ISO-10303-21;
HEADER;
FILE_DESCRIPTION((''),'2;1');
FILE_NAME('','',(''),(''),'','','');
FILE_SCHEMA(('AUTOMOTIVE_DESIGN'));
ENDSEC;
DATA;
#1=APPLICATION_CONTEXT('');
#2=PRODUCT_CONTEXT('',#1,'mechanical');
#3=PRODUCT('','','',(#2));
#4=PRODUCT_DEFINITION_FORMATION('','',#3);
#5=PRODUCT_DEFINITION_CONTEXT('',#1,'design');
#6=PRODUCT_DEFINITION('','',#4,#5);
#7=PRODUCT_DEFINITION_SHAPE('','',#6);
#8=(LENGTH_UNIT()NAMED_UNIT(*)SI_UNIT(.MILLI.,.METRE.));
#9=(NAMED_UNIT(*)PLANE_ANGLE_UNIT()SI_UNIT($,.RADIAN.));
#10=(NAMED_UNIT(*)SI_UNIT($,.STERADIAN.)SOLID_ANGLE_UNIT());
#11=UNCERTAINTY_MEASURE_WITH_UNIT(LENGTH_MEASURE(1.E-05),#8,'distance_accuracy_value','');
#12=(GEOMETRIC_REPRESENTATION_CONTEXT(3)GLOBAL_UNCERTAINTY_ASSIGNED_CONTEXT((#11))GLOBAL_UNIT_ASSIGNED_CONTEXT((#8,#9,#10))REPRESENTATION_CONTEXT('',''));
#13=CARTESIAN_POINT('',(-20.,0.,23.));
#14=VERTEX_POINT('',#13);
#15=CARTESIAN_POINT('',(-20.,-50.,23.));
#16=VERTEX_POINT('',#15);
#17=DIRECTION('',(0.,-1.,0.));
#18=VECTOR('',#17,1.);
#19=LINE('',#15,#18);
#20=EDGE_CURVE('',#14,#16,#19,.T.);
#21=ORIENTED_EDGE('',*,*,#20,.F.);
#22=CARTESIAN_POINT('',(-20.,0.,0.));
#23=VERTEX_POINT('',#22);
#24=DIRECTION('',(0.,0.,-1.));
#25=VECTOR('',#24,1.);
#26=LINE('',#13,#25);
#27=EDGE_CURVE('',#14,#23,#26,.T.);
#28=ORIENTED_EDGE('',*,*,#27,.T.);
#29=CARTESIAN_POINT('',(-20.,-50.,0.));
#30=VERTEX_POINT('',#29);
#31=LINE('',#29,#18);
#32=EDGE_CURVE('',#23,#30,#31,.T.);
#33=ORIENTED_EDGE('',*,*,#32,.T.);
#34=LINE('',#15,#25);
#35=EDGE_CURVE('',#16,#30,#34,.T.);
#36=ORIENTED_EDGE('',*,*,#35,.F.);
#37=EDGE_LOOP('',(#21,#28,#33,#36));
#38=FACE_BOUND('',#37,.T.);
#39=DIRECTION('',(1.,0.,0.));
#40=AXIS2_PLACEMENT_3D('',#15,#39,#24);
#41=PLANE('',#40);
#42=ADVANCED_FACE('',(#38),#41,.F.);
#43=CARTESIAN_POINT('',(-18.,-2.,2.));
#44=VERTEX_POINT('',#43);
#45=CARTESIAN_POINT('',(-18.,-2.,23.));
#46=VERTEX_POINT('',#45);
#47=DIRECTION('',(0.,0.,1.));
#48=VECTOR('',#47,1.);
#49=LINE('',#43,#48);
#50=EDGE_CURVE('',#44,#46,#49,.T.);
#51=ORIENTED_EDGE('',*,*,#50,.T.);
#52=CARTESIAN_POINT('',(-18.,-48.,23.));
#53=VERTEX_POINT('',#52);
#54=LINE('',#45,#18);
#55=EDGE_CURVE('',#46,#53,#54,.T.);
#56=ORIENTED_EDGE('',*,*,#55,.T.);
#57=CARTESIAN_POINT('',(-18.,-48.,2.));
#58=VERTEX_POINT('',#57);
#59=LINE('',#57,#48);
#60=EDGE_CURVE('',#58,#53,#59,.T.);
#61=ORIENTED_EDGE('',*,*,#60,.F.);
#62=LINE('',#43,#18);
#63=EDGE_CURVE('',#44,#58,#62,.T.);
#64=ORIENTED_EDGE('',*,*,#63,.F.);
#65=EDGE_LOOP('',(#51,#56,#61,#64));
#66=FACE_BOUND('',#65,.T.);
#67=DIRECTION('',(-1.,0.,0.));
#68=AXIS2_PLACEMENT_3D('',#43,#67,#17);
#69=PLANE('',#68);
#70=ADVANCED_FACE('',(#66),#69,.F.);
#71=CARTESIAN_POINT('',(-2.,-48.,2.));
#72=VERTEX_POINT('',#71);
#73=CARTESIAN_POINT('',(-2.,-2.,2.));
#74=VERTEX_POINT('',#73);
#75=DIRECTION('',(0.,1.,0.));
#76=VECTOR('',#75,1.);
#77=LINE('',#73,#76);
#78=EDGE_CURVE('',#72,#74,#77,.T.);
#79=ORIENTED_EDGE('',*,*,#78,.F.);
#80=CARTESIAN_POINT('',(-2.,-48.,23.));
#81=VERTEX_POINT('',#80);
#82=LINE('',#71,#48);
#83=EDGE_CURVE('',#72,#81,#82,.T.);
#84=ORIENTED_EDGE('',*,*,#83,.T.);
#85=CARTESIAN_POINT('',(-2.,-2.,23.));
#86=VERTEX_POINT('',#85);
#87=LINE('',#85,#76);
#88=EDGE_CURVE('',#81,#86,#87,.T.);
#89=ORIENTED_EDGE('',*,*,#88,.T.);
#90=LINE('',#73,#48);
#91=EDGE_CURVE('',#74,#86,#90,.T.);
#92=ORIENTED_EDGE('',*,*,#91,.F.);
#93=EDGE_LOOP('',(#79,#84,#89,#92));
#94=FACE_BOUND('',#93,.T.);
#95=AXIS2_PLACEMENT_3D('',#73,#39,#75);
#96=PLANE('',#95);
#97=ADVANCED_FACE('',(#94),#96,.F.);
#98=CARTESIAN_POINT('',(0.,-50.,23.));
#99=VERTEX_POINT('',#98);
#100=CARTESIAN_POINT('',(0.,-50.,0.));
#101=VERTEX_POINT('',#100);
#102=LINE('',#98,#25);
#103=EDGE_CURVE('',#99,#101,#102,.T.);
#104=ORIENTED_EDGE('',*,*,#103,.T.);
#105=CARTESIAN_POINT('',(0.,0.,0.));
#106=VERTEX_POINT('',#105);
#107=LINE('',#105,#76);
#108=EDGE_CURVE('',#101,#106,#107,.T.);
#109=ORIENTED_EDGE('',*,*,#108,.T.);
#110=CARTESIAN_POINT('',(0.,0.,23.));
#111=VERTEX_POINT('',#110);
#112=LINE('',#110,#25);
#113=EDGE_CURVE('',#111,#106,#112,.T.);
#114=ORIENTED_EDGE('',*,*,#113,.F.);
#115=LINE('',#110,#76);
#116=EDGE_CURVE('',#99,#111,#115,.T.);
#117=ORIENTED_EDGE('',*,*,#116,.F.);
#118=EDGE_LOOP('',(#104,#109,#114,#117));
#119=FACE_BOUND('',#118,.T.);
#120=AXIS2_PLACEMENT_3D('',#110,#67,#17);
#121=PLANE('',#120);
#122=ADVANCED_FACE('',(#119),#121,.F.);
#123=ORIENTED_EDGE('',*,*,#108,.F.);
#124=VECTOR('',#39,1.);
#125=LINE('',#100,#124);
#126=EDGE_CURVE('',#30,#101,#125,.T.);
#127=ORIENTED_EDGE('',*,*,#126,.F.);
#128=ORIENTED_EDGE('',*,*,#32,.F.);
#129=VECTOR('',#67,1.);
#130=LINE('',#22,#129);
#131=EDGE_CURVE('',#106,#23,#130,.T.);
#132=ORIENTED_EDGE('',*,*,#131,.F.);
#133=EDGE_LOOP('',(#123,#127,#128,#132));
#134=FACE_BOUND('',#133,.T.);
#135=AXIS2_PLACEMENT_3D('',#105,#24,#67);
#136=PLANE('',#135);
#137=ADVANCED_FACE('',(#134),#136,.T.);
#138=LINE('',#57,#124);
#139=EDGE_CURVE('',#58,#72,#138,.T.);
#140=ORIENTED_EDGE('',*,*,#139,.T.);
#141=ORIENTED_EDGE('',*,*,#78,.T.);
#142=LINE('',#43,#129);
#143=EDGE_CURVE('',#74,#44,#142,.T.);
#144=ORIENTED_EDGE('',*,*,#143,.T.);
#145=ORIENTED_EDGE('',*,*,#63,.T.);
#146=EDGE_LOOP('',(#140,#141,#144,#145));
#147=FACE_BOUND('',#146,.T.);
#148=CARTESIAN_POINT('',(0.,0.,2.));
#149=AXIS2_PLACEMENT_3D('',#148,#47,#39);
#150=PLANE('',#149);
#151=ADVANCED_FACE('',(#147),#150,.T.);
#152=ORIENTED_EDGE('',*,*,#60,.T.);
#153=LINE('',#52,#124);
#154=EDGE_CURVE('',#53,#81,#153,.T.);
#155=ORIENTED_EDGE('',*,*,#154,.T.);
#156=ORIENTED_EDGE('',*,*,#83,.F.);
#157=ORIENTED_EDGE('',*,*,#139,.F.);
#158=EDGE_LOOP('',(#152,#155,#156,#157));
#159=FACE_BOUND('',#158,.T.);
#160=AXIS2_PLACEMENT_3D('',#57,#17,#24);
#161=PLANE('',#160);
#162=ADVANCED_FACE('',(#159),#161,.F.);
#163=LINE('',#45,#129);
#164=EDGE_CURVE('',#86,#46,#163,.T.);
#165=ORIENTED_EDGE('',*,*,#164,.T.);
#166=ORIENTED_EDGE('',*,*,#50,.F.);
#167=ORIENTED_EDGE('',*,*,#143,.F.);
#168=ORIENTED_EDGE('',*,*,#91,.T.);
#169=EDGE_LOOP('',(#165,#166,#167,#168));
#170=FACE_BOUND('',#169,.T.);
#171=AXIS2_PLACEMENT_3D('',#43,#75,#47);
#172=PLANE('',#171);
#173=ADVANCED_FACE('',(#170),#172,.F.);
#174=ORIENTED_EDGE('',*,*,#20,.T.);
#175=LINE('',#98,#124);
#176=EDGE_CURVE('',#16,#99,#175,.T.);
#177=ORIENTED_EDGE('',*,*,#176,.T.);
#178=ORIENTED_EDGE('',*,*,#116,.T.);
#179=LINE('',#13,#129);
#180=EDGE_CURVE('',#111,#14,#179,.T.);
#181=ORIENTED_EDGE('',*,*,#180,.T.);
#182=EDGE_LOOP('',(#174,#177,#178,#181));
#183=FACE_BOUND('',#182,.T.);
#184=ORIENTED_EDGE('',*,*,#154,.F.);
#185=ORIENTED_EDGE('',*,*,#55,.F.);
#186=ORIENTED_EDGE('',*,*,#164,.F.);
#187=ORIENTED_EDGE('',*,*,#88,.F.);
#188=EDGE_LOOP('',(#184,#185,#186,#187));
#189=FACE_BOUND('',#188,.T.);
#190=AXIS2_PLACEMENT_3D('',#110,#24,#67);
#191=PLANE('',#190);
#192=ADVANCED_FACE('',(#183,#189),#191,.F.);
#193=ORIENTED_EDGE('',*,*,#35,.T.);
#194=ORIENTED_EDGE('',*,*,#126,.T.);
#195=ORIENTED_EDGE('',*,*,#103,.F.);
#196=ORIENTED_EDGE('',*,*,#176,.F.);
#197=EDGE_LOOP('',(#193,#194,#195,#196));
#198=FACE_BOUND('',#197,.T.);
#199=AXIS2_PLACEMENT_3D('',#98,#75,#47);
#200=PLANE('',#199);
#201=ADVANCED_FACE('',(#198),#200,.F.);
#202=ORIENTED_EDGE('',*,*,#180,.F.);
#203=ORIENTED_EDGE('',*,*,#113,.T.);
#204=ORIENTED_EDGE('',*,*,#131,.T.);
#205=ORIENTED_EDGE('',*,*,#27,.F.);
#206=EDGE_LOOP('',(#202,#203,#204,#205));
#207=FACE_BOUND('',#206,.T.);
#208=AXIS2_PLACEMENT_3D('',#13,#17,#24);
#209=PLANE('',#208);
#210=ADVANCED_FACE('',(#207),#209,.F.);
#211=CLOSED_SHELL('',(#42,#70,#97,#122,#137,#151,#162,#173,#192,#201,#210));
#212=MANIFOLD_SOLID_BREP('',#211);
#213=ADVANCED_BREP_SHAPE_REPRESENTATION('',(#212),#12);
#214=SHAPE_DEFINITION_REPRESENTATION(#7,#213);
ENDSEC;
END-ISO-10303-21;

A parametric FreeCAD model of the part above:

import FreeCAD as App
import Part
import Sketcher


def add_polygon(sketch, points):
    """Adds a closed chain of lines whose ends are joined by coincident constraints."""
    first, n = sketch.GeometryCount, len(points)
    for a, b in zip(points, points[1:] + points[:1]):
        sketch.addGeometry(Part.LineSegment(App.Vector(*a, 0), App.Vector(*b, 0)), False)
    for i in range(n):
        sketch.addConstraint(Sketcher.Constraint("Coincident", first + i, 2, first + (i + 1) % n, 1))

doc = App.newDocument("Part")
body = doc.addObject("PartDesign::Body", "Body")

# Sketch on XY plane
sketch1 = body.newObject("Sketcher::SketchObject", "Sketch")
sketch1.AttachmentSupport = (doc.getObject("XY_Plane"), [""])
sketch1.MapMode = "FlatFace"
add_polygon(sketch1, [(-20, 0), (-20, -50), (0, -50), (0, 0)])  # lines 0-3
sketch1.addConstraint([
    Sketcher.Constraint("Vertical", 0),
    Sketcher.Constraint("Horizontal", 1),
    Sketcher.Constraint("Vertical", 2),
    Sketcher.Constraint("Horizontal", 3),
    Sketcher.Constraint("Coincident", 2, 2, -1, 1),
    Sketcher.Constraint("DistanceX", 1, 1, 1, 2, 20.0),
    Sketcher.Constraint("DistanceY", 0, 2, 0, 1, 50.0),
])
pad1 = body.newObject("PartDesign::Pad", "Pad")
pad1.Profile = sketch1
pad1.Length = 23

# Sketch on XY plane
sketch2 = body.newObject("Sketcher::SketchObject", "Sketch001")
sketch2.AttachmentSupport = (doc.getObject("XY_Plane"), [""])
sketch2.MapMode = "FlatFace"
sketch2.AttachmentOffset = App.Placement(App.Vector(0, 0, 23), App.Rotation())
add_polygon(sketch2, [(-18, -2), (-18, -48), (-2, -48), (-2, -2)])  # lines 0-3
sketch2.addConstraint([
    Sketcher.Constraint("Vertical", 0),
    Sketcher.Constraint("Horizontal", 1),
    Sketcher.Constraint("Vertical", 2),
    Sketcher.Constraint("Horizontal", 3),
    Sketcher.Constraint("DistanceX", 1, 1, 1, 2, 16.0),
    Sketcher.Constraint("DistanceY", 0, 2, 0, 1, 46.0),
    Sketcher.Constraint("DistanceX", 0, 2, -1, 1, 18.0),
    Sketcher.Constraint("DistanceY", 0, 2, -1, 1, 48.0),
])
pocket1 = body.newObject("PartDesign::Pocket", "Pocket")
pocket1.Profile = sketch2
pocket1.Length = 21

doc.recompute()
